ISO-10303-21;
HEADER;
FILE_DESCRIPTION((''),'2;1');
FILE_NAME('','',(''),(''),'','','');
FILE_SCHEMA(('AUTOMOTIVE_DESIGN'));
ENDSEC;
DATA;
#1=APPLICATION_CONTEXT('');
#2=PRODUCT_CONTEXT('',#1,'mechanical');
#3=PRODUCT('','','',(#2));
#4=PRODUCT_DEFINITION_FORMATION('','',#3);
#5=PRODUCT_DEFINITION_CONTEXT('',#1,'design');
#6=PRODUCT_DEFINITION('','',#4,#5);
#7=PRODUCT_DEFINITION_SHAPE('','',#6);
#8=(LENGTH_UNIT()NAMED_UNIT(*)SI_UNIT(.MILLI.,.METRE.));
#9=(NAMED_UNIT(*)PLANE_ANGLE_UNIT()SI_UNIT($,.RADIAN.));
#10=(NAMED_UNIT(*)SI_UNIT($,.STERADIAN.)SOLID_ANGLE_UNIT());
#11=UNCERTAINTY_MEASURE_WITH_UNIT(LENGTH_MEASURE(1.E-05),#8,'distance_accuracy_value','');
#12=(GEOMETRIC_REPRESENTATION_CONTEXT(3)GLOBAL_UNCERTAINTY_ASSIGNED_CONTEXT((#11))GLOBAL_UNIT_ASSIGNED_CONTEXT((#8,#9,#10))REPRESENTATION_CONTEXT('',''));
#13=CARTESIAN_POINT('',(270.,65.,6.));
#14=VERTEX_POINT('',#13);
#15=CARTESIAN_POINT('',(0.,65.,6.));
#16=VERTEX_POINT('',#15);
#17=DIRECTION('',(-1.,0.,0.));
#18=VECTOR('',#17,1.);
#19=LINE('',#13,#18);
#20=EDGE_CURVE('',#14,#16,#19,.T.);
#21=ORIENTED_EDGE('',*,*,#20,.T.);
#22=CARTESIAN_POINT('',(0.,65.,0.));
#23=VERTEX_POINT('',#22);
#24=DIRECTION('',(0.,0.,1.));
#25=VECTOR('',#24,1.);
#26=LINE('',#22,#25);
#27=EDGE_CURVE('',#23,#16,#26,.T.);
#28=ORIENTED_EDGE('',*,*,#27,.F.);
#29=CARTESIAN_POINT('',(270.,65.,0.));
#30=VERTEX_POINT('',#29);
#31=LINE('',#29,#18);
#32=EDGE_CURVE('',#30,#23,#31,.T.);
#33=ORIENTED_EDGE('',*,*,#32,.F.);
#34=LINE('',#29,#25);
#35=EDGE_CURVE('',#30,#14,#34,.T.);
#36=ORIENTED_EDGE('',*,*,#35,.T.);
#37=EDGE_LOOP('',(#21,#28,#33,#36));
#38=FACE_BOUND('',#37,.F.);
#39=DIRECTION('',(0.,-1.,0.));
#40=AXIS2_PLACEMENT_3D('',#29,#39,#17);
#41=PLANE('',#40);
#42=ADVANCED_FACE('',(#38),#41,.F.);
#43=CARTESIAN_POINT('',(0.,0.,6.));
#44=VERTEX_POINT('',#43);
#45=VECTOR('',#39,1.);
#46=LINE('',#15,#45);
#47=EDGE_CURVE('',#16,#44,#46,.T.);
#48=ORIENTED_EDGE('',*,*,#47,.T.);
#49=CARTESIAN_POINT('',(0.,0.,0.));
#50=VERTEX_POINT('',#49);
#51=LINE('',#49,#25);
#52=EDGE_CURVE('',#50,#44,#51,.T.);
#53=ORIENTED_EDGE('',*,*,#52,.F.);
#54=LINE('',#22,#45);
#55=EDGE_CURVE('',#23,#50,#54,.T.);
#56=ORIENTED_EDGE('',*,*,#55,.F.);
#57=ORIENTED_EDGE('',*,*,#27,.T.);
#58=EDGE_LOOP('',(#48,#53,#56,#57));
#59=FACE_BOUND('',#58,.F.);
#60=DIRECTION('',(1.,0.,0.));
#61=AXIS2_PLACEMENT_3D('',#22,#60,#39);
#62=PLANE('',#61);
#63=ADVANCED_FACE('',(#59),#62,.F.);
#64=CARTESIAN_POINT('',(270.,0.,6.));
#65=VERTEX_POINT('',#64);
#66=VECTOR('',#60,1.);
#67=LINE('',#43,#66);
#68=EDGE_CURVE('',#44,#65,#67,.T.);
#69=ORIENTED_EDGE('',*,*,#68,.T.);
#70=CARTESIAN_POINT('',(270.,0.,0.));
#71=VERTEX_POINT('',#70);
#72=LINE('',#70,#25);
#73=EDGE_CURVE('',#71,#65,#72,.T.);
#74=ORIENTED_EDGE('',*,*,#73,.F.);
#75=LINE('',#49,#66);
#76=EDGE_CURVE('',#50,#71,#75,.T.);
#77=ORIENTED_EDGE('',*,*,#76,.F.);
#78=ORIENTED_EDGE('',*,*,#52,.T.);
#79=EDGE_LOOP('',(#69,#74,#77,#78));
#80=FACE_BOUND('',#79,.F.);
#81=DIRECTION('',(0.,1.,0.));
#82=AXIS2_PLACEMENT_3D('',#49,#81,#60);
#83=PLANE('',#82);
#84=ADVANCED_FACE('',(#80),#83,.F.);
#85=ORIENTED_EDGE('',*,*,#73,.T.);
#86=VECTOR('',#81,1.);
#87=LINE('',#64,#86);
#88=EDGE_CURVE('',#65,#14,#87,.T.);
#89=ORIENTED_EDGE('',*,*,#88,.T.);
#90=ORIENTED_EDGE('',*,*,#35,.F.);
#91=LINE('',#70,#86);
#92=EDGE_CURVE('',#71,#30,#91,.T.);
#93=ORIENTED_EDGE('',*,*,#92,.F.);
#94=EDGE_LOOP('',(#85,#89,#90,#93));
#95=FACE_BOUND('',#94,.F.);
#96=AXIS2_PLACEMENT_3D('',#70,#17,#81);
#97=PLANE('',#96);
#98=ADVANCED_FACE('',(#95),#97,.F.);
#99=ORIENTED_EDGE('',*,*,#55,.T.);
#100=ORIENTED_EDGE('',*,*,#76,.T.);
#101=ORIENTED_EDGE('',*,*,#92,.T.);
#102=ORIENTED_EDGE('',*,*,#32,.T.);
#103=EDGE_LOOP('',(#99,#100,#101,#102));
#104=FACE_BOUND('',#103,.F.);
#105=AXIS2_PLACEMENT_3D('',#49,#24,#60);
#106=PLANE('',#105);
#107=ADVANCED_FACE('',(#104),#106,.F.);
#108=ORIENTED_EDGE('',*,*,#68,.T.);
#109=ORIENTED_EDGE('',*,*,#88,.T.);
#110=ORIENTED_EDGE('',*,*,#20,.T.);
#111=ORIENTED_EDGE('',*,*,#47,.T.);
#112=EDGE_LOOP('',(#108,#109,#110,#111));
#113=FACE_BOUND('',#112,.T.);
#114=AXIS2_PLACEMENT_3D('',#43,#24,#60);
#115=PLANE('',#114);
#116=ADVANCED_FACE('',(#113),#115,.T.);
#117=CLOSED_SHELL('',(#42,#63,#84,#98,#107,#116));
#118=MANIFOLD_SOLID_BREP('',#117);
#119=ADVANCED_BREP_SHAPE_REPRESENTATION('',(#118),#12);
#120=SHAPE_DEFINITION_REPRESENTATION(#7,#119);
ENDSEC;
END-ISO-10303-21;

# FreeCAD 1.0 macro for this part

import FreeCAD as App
import Part
import Sketcher

V = App.Vector

doc = App.newDocument("Part")
body = doc.addObject("PartDesign::Body", "Body")

sketch1 = doc.addObject("Sketcher::SketchObject", "Sketch")
body.addObject(sketch1)
sketch1.AttachmentSupport = (doc.XY_Plane, [""])
sketch1.MapMode = "FlatFace"
sketch1.addGeometry([
    Part.LineSegment(V(0, 65, 0), V(0, 0, 0)),
    Part.LineSegment(V(0, 0, 0), V(270, 0, 0)),
    Part.LineSegment(V(270, 0, 0), V(270, 65, 0)),
    Part.LineSegment(V(270, 65, 0), V(0, 65, 0)),
], False)
sketch1.addConstraint([
    Sketcher.Constraint("Coincident", 0, 2, 1, 1),
    Sketcher.Constraint("Coincident", 1, 2, 2, 1),
    Sketcher.Constraint("Coincident", 2, 2, 3, 1),
    Sketcher.Constraint("Coincident", 3, 2, 0, 1),
    Sketcher.Constraint("Vertical", 0),
    Sketcher.Constraint("Horizontal", 1),
    Sketcher.Constraint("Vertical", 2),
    Sketcher.Constraint("Horizontal", 3),
    Sketcher.Constraint("Coincident", 0, 2, -1, 1),
    Sketcher.Constraint("DistanceX", 1, 1, 1, 2, 270.0),
    Sketcher.Constraint("DistanceY", 0, 2, 0, 1, 65.0),
])
pad1 = doc.addObject("PartDesign::Pad", "Pad")
body.addObject(pad1)
pad1.Profile = sketch1
pad1.Length = 6

doc.recompute()
